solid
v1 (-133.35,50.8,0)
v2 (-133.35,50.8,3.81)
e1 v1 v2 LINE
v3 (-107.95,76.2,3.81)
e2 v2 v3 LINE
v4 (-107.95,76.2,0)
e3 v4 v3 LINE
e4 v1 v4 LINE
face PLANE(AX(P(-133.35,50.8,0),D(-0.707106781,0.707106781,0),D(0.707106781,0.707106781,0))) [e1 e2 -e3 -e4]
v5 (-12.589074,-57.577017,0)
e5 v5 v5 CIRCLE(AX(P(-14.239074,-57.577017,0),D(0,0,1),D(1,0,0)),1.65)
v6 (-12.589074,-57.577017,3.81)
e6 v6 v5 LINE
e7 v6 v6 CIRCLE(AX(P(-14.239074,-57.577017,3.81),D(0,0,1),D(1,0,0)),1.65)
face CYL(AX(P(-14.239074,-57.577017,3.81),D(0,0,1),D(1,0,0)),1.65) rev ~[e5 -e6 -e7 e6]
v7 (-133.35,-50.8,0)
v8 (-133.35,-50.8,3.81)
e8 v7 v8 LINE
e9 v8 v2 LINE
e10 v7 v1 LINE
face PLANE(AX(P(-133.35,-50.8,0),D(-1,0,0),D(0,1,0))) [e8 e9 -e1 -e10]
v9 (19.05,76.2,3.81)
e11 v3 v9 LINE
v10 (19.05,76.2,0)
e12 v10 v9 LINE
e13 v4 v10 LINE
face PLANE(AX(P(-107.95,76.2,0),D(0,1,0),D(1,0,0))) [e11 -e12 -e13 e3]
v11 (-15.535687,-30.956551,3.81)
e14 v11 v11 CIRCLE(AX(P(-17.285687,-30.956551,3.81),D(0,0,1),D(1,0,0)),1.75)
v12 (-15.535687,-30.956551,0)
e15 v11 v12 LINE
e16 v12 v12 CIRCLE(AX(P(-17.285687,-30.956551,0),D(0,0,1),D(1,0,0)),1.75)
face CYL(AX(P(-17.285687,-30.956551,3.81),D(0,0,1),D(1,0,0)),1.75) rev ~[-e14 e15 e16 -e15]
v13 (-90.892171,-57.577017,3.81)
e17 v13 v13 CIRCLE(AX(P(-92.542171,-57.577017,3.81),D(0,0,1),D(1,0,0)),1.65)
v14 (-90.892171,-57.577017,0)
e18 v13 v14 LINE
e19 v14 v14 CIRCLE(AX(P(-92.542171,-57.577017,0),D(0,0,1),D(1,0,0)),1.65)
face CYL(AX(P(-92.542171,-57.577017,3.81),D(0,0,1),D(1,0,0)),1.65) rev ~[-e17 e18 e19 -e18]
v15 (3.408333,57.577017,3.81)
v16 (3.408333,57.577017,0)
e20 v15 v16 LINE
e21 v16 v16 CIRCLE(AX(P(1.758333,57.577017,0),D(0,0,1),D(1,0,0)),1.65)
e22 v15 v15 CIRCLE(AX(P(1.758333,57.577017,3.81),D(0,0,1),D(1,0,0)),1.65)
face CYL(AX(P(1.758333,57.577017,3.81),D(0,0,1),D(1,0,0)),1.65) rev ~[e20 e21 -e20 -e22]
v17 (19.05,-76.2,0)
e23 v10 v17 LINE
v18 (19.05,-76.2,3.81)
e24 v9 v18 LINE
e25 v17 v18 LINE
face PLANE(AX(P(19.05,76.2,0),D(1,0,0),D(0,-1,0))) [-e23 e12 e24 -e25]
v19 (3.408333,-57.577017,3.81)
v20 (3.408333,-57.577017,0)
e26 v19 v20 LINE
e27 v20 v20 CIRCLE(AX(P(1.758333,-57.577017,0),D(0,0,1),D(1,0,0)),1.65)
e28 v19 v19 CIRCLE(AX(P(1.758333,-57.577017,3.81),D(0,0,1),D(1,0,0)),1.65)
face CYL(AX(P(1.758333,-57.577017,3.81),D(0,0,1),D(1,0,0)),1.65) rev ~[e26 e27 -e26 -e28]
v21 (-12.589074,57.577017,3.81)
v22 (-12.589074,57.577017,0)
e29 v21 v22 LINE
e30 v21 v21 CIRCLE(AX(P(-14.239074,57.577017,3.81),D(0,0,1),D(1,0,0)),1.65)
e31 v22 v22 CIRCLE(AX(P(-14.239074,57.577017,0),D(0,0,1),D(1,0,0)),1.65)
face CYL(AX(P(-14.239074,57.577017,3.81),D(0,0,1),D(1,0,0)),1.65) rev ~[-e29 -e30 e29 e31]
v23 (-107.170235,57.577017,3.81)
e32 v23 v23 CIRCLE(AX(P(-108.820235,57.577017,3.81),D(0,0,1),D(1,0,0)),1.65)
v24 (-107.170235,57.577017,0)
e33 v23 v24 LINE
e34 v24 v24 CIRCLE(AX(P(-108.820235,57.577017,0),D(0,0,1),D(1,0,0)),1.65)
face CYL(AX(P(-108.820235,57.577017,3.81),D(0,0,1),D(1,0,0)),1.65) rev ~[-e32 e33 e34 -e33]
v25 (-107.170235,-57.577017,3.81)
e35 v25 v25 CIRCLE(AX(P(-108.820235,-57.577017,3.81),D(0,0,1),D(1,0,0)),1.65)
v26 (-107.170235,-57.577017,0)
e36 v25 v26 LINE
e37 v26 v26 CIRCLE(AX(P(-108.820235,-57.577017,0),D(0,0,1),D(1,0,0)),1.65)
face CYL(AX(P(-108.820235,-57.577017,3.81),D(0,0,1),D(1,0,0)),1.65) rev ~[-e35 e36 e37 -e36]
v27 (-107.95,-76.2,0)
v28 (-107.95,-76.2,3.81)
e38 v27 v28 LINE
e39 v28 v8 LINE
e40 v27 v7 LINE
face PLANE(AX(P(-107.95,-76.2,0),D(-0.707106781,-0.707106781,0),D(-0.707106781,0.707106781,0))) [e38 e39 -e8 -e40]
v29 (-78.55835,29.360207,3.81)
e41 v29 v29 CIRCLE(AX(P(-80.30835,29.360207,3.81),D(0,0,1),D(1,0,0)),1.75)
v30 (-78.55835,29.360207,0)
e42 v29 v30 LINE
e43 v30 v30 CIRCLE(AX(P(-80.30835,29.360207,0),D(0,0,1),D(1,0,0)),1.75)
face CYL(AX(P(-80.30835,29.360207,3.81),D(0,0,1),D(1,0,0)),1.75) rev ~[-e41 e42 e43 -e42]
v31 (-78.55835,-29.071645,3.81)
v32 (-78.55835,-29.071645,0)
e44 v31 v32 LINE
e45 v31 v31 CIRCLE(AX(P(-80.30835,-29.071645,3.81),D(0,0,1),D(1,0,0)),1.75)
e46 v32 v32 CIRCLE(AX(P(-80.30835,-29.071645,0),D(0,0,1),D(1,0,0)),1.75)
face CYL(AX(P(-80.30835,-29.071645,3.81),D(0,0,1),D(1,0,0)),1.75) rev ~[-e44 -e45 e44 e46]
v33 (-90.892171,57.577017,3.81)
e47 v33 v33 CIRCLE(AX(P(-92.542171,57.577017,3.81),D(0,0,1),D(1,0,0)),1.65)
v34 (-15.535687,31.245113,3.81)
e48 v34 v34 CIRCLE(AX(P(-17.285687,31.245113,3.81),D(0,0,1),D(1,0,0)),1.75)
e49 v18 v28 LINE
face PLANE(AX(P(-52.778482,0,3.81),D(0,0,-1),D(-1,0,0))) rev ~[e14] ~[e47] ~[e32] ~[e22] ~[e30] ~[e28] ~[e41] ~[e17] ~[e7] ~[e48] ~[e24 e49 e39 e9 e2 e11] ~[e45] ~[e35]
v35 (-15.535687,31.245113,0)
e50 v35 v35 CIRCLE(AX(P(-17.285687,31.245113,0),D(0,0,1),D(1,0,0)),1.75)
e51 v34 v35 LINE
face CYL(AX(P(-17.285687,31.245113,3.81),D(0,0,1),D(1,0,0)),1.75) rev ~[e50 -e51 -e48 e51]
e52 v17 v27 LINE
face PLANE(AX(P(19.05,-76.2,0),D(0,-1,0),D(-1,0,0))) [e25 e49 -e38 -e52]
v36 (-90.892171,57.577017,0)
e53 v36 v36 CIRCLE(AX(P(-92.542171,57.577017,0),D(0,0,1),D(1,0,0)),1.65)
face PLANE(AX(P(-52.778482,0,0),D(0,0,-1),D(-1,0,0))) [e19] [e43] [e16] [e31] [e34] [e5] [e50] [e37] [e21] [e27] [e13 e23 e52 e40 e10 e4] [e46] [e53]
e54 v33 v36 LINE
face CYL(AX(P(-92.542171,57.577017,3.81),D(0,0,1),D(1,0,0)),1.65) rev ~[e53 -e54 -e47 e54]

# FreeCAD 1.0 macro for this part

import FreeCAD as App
import Part
import Sketcher
from FreeCAD import Vector
Q = App.Units.Quantity


def add_polygon(sketch, points):
    """Adds a closed chain of lines whose ends are joined by coincident constraints."""
    first, n = sketch.GeometryCount, len(points)
    for a, b in zip(points, points[1:] + points[:1]):
        sketch.addGeometry(Part.LineSegment(App.Vector(*a, 0), App.Vector(*b, 0)), False)
    for i in range(n):
        sketch.addConstraint(Sketcher.Constraint("Coincident", first + i, 2, first + (i + 1) % n, 1))

doc = App.newDocument("Part")
params = doc.addObject("Spreadsheet::Sheet", "Params")
for row, (alias, value) in enumerate([
    ("sketch1_width", "5 in"),
    ("sketch1_height", "6 in"),
    ("sketch1_height2", "4 in"),
    ("pad1_length", "0.15 in"),
    ("pocket1_length", "0.35 in"),
], start=1):
    params.set(f"A{row}", alias)
    params.set(f"B{row}", "=" + value)
    params.setAlias(f"B{row}", alias)

body = doc.addObject("PartDesign::Body", "Body")

sketch1 = body.newObject("Sketcher::SketchObject", "Sketch")
sketch1.AttachmentSupport = (doc.getObject("XY_Plane"), [""])
sketch1.MapMode = "FlatFace"
add_polygon(sketch1, [(-133, -51), (-108, -76), (19, -76), (19, 76), (-108, 76), (-133, 51)])
sketch1.addConstraint([
    Sketcher.Constraint("Horizontal", 1),
    Sketcher.Constraint("Vertical", 2),
    Sketcher.Constraint("Horizontal", 3),
    Sketcher.Constraint("Vertical", 5),
    Sketcher.Constraint("Symmetric", 0, 2, 3, 2, -1),
    Sketcher.Constraint("Perpendicular", 0, 4),
    Sketcher.Constraint("Equal", 0, 4),
    Sketcher.Constraint("DistanceX", 1, 1, 1, 2, Q("5 in")),
    Sketcher.Constraint("DistanceY", 2, 1, 2, 2, Q("6 in")),
    Sketcher.Constraint("DistanceY", 5, 2, 5, 1, Q("4 in")),
    Sketcher.Constraint("DistanceX", 0, 2, -1, 1, Q("4.25 in")),
])
sketch1.setExpression("Constraints[13]", "Params.sketch1_width")
sketch1.setExpression("Constraints[14]", "Params.sketch1_height")
sketch1.setExpression("Constraints[15]", "Params.sketch1_height2")
pad1 = body.newObject("PartDesign::Pad", "Pad")
pad1.Profile = sketch1
pad1.setExpression("Length", "Params.pad1_length")

sketch2 = body.newObject("Sketcher::SketchObject", "Sketch001")
sketch2.AttachmentSupport = (doc.getObject("XY_Plane"), [""])
sketch2.MapMode = "FlatFace"
sketch2.AttachmentOffset = App.Placement(Vector(0, 0, 0.15 * 25.4), App.Rotation())
sketch2.addGeometry([
    Part.Circle(Vector(1.8, 57.6, 0), Vector(0, 0, 1), 1.6),
    Part.Circle(Vector(-14.2, 57.6, 0), Vector(0, 0, 1), 1.6),
    Part.Circle(Vector(-92.5, 57.6, 0), Vector(0, 0, 1), 1.6),
    Part.Circle(Vector(-108.8, 57.6, 0), Vector(0, 0, 1), 1.6),
    Part.Circle(Vector(-108.8, -57.6, 0), Vector(0, 0, 1), 1.6),
    Part.Circle(Vector(-92.5, -57.6, 0), Vector(0, 0, 1), 1.6),
    Part.Circle(Vector(-14.2, -57.6, 0), Vector(0, 0, 1), 1.6),
    Part.Circle(Vector(1.8, -57.6, 0), Vector(0, 0, 1), 1.6),
], False)
sketch2.addConstraint([
    Sketcher.Constraint("Equal", 0, 1),
    Sketcher.Constraint("Equal", 1, 2),
    Sketcher.Constraint("Equal", 2, 3),
    Sketcher.Constraint("Equal", 3, 4),
    Sketcher.Constraint("Equal", 4, 5),
    Sketcher.Constraint("Equal", 5, 6),
    Sketcher.Constraint("Equal", 6, 7),
    Sketcher.Constraint("Symmetric", 3, 3, 4, 3, -1),
    Sketcher.Constraint("Symmetric", 2, 3, 5, 3, -1),
    Sketcher.Constraint("Symmetric", 1, 3, 6, 3, -1),
    Sketcher.Constraint("Symmetric", 0, 3, 7, 3, -1),
    Sketcher.Constraint("Horizontal", 0, 3, 1, 3),
    Sketcher.Constraint("Horizontal", 1, 3, 2, 3),
    Sketcher.Constraint("Horizontal", 2, 3, 3, 3),
    Sketcher.Constraint("Diameter", 0, Q("3.3 mm")),
    Sketcher.Constraint("DistanceX", 2, 3, -1, 1, Q("92.542171 mm")),
    Sketcher.Constraint("DistanceX", 3, 3, 1, 3, Q("94.581161 mm")),
    Sketcher.Constraint("DistanceX", -1, 1, 0, 3, Q("1.758333 mm")),
    Sketcher.Constraint("DistanceY", -1, 1, 0, 3, Q("57.577017 mm")),
    Sketcher.Constraint("DistanceX", 1, 3, -1, 1, Q("14.239074 mm")),
])
pocket1 = body.newObject("PartDesign::Pocket", "Pocket")
pocket1.Profile = sketch2
pocket1.setExpression("Length", "Params.pocket1_length")

sketch3 = body.newObject("Sketcher::SketchObject", "Sketch002")
sketch3.AttachmentSupport = (doc.getObject("XY_Plane"), [""])
sketch3.MapMode = "FlatFace"
sketch3.AttachmentOffset = App.Placement(Vector(0, 0, 0.15 * 25.4), App.Rotation())
sketch3.addGeometry([
    Part.Circle(Vector(-80.3, 29.4, 0), Vector(0, 0, 1), 1.8),
    Part.Circle(Vector(-17.3, 31.2, 0), Vector(0, 0, 1), 1.8),
    Part.Circle(Vector(-17.3, -31, 0), Vector(0, 0, 1), 1.8),
    Part.Circle(Vector(-80.3, -29.1, 0), Vector(0, 0, 1), 1.8),
], False)
sketch3.addConstraint([
    Sketcher.Constraint("Equal", 0, 1),
    Sketcher.Constraint("Equal", 1, 2),
    Sketcher.Constraint("Equal", 2, 3),
    Sketcher.Constraint("Vertical", 1, 3, 2, 3),
    Sketcher.Constraint("Vertical", 0, 3, 3, 3),
    Sketcher.Constraint("Diameter", 0, Q("3.5 mm")),
    Sketcher.Constraint("DistanceX", 0, 3, -1, 1, Q("80.30835 mm")),
    Sketcher.Constraint("DistanceY", 2, 3, -1, 1, Q("30.956551 mm")),
    Sketcher.Constraint("DistanceY", 3, 3, 0, 3, Q("58.431851 mm")),
    Sketcher.Constraint("DistanceY", -1, 1, 0, 3, Q("29.360207 mm")),
    Sketcher.Constraint("DistanceX", 1, 3, -1, 1, Q("17.285687 mm")),
    Sketcher.Constraint("DistanceY", -1, 1, 1, 3, Q("31.245113 mm")),
])
pocket2 = body.newObject("PartDesign::Pocket", "Pocket001")
pocket2.Profile = sketch3
pocket2.Type = "ThroughAll"

doc.recompute()
